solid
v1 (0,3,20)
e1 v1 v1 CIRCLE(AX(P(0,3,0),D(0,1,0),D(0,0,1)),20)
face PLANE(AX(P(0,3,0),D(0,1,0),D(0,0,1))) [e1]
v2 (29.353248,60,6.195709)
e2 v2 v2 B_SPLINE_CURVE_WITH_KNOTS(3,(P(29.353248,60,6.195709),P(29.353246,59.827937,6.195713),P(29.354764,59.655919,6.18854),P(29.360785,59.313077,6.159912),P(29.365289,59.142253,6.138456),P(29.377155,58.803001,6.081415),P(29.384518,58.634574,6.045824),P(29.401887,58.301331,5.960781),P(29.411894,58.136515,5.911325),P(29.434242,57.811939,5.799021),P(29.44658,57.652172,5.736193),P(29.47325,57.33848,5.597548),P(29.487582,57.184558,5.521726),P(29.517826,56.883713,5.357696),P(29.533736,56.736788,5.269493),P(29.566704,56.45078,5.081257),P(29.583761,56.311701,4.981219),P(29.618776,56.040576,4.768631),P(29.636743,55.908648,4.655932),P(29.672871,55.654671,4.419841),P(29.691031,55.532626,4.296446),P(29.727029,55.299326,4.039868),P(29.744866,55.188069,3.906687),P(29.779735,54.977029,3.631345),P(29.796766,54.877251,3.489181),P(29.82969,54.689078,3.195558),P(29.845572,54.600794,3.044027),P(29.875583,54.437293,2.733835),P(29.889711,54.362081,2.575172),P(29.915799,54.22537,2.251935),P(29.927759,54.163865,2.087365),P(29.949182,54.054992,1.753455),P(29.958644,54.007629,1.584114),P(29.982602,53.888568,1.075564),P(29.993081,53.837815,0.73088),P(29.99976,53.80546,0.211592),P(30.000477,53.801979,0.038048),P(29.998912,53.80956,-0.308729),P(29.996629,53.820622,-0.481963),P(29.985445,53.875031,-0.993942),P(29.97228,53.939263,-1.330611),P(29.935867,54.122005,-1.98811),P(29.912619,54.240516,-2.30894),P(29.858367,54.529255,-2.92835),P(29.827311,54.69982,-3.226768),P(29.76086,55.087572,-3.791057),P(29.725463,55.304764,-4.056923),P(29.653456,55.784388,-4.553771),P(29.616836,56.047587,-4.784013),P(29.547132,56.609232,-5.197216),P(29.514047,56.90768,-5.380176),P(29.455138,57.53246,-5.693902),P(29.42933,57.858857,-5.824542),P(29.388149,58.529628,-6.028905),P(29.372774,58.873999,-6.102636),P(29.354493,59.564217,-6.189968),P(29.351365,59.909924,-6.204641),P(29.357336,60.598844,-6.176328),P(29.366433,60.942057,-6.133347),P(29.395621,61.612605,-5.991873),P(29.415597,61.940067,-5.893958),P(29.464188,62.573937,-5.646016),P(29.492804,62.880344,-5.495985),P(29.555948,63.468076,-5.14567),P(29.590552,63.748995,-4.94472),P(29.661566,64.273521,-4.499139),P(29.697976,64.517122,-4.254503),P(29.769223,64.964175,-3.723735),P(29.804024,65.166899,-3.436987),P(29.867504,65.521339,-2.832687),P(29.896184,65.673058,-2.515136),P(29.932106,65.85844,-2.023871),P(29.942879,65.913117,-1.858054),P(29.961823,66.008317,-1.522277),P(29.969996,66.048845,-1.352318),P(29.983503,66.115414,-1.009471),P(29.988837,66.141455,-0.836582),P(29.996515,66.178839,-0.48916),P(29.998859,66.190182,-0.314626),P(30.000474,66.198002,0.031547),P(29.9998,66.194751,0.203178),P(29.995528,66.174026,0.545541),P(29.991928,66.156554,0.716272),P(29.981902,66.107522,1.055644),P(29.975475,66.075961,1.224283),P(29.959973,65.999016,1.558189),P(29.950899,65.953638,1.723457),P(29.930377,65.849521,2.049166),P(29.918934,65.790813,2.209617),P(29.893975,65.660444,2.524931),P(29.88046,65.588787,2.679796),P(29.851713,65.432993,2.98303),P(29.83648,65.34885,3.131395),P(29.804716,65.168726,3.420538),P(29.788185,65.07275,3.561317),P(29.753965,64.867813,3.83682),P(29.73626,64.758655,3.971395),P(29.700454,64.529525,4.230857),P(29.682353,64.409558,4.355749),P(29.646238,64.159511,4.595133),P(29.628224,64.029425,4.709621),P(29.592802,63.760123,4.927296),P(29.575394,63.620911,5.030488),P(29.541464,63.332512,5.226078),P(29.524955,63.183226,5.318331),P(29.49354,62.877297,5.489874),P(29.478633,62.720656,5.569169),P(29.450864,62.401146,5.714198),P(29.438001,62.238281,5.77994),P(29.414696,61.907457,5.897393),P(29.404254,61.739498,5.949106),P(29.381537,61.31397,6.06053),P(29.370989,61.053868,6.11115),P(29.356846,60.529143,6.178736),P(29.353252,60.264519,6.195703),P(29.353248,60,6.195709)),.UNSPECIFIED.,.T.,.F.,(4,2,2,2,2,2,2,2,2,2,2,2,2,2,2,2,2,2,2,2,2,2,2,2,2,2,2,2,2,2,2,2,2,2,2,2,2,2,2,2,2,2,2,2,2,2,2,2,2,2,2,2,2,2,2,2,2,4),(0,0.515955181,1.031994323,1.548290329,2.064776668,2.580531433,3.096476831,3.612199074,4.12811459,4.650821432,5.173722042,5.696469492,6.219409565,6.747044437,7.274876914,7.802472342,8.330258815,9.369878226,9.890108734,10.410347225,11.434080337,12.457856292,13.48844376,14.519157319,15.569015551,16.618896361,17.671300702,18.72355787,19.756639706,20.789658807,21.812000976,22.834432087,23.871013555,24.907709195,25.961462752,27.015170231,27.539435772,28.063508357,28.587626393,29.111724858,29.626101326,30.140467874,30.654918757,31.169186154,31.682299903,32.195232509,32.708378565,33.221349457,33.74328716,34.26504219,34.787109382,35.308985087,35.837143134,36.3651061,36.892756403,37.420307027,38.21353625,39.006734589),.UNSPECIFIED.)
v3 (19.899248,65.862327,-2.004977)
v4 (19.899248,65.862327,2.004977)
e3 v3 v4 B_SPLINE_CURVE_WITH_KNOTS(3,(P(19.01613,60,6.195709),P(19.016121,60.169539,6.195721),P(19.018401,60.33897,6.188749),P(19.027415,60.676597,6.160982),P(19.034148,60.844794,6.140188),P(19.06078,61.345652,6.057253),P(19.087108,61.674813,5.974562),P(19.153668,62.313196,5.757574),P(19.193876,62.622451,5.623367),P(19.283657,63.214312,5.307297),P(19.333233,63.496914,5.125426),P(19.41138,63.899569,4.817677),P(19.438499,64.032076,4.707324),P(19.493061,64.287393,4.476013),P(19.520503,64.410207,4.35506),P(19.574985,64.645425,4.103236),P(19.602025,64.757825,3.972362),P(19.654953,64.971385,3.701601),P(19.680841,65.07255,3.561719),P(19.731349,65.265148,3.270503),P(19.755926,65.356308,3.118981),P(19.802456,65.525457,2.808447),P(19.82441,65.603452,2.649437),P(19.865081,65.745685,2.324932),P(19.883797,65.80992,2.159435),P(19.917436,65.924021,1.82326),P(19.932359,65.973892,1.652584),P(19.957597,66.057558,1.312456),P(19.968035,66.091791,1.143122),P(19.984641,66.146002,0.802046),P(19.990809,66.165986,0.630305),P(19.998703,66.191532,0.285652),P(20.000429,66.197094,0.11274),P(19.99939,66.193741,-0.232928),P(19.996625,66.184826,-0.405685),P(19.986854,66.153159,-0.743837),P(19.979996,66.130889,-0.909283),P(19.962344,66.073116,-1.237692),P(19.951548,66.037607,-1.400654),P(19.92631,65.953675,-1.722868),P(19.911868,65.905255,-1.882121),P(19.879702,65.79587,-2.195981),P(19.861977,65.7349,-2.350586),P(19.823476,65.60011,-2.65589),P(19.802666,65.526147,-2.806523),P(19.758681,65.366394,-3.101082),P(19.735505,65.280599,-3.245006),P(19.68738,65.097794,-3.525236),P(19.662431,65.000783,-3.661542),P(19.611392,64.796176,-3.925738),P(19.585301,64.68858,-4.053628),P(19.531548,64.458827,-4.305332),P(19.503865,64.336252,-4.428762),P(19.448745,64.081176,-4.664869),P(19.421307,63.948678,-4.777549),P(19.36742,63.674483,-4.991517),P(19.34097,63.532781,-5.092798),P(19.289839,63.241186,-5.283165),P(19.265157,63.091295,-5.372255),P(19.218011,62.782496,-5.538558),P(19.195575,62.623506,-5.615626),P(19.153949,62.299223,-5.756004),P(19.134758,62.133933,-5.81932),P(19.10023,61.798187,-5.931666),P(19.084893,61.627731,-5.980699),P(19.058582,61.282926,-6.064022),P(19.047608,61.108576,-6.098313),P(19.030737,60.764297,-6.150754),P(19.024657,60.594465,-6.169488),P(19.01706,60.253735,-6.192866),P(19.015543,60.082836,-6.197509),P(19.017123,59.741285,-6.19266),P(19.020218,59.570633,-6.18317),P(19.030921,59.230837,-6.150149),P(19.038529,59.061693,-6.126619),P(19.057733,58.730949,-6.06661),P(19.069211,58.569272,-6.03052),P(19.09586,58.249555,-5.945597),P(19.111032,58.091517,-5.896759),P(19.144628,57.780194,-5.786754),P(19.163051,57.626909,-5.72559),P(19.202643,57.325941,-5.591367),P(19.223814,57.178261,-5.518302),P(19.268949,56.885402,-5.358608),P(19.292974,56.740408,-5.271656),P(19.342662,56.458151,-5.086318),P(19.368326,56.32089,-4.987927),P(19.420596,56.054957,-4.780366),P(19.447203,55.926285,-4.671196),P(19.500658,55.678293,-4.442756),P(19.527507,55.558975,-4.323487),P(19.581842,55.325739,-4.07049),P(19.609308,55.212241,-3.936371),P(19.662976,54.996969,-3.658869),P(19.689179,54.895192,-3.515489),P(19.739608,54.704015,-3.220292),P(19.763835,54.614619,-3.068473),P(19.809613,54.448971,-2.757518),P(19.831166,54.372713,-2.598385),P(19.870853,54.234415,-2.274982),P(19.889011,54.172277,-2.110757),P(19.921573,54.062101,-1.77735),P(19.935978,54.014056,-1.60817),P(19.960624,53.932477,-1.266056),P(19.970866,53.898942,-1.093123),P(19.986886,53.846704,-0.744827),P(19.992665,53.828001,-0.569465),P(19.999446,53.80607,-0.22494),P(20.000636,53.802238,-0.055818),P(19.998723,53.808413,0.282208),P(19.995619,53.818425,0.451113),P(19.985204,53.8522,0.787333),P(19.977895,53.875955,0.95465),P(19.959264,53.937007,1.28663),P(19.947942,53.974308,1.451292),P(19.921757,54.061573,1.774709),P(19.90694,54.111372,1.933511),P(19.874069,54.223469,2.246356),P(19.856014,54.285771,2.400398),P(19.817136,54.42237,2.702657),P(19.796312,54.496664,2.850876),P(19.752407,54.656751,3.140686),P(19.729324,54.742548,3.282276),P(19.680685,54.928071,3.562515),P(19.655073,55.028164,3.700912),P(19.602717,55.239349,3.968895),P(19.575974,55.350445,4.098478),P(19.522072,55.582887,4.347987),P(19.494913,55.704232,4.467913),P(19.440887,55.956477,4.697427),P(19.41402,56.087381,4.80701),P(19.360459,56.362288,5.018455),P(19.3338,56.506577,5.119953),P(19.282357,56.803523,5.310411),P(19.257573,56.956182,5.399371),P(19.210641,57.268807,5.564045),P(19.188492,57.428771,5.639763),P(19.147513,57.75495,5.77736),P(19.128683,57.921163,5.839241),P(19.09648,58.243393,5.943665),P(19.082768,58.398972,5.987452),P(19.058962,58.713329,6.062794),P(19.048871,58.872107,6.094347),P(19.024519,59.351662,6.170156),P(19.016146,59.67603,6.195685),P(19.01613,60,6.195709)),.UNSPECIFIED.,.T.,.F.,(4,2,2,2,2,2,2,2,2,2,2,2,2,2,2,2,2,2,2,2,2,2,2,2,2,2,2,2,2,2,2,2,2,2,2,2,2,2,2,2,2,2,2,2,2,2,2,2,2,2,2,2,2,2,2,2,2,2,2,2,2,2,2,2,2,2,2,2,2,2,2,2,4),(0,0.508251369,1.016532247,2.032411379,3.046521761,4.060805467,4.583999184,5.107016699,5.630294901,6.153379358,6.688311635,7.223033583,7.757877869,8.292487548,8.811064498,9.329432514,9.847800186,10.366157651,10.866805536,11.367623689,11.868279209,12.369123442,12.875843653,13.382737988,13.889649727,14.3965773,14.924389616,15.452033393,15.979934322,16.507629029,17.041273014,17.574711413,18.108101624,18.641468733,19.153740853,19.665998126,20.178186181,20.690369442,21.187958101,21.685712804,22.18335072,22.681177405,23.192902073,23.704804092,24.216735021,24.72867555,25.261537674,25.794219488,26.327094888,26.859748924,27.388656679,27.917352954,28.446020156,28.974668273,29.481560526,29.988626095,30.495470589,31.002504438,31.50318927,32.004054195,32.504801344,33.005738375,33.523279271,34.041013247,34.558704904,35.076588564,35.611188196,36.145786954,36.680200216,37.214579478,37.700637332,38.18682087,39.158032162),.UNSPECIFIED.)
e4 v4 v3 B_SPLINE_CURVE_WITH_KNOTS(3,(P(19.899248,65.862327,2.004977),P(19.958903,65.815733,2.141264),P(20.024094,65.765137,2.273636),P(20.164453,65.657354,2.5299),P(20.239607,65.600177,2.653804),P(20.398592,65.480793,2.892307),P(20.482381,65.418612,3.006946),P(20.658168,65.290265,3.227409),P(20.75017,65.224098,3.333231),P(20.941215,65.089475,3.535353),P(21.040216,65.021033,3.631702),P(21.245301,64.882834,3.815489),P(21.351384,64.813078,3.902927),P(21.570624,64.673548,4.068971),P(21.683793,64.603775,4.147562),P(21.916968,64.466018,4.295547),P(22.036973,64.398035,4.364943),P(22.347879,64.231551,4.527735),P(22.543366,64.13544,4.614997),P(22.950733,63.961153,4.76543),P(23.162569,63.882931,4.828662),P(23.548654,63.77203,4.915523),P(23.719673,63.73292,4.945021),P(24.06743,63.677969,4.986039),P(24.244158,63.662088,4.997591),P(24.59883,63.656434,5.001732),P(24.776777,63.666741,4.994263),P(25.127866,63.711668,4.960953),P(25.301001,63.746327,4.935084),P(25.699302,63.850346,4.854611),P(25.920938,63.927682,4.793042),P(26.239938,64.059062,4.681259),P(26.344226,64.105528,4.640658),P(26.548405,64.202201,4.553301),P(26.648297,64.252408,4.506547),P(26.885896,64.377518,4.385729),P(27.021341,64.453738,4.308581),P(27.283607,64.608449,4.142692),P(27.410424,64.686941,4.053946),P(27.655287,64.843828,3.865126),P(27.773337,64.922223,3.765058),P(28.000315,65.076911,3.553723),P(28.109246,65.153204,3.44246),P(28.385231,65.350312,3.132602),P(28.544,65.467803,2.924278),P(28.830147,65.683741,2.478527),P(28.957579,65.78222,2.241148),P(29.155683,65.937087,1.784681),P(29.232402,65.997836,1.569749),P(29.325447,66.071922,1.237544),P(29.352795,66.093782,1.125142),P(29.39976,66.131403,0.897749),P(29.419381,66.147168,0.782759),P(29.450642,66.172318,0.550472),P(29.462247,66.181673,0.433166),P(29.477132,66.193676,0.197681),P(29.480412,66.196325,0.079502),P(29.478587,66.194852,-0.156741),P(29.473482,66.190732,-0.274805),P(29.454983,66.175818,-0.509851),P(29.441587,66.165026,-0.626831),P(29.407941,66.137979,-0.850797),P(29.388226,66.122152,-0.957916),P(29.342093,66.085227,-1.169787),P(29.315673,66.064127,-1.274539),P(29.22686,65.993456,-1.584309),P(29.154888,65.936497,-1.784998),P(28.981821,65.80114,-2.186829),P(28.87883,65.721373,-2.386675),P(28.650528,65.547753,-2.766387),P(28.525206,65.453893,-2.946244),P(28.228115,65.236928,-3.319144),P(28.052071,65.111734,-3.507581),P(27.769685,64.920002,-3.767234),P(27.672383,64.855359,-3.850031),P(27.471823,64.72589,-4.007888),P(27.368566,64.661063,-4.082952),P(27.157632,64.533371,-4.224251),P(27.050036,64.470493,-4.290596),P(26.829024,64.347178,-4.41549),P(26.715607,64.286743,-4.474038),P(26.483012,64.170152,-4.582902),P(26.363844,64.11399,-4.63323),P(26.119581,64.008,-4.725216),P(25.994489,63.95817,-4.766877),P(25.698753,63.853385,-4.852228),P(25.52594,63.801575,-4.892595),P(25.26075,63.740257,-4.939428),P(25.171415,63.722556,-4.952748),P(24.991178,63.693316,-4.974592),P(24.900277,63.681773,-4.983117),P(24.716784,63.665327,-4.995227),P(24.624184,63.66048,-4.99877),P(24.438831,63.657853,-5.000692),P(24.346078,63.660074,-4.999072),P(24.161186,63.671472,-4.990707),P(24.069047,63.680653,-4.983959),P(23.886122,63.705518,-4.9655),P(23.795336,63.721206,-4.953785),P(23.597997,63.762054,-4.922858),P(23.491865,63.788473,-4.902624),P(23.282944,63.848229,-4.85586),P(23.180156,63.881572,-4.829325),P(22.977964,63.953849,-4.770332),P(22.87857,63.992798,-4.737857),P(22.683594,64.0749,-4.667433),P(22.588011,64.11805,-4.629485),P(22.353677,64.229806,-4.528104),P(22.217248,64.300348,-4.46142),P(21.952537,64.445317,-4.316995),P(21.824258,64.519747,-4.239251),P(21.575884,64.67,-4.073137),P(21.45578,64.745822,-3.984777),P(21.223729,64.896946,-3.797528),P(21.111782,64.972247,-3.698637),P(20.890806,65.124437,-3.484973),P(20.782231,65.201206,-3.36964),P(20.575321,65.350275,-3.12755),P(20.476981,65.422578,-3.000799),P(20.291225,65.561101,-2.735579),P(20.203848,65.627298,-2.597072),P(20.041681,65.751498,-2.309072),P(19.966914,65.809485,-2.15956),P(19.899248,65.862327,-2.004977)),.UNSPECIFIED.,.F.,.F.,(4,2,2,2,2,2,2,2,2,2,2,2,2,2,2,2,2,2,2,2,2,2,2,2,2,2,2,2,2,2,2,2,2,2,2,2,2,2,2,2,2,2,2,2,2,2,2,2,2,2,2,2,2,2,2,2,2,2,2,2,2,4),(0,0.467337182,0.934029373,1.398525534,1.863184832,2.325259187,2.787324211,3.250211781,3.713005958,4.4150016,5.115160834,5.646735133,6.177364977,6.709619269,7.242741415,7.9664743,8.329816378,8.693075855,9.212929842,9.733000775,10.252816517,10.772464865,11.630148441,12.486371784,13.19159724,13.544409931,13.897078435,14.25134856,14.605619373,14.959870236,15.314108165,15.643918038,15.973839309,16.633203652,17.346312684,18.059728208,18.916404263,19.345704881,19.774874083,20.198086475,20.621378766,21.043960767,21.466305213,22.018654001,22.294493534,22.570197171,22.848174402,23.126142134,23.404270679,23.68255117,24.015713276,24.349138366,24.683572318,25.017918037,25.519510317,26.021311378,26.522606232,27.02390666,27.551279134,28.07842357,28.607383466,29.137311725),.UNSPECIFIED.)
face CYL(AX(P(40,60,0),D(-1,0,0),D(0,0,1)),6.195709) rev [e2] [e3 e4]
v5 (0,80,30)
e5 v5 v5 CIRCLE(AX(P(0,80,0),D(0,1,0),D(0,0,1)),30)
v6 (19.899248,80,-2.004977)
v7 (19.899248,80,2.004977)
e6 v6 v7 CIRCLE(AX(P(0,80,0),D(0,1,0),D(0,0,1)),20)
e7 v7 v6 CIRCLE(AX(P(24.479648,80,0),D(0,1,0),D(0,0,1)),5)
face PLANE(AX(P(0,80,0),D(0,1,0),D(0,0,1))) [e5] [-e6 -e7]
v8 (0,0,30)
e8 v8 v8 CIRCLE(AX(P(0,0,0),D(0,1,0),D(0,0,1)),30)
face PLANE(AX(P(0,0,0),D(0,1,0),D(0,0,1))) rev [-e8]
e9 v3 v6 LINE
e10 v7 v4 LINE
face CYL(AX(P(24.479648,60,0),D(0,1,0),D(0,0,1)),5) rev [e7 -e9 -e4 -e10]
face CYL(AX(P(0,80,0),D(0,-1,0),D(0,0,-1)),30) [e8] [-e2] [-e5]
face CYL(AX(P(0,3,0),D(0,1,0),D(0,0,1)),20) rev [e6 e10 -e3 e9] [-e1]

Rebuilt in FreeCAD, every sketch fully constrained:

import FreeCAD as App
import Part
import Sketcher

V = App.Vector
Q = App.Units.Quantity

doc = App.newDocument("Part")
body = doc.addObject("PartDesign::Body", "Body")

sketch1 = doc.addObject("Sketcher::SketchObject", "Sketch")
body.addObject(sketch1)
sketch1.AttachmentSupport = (doc.XZ_Plane, [""])
sketch1.MapMode = "FlatFace"
sketch1.addGeometry(Part.Circle(V(0, 0, 0), V(0, 0, 1), 30), False)
sketch1.addConstraint(Sketcher.Constraint("Coincident", 0, 3, -1, 1))
sketch1.addConstraint(Sketcher.Constraint("Diameter", 0, Q("60 mm")))
pad1 = doc.addObject("PartDesign::Pad", "Pad")
body.addObject(pad1)
pad1.Profile = sketch1
pad1.Length = 80
pad1.Reversed = True

sketch2 = doc.addObject("Sketcher::SketchObject", "Sketch001")
body.addObject(sketch2)
sketch2.AttachmentSupport = (doc.XZ_Plane, [""])
sketch2.MapMode = "FlatFace"
sketch2.AttachmentOffset = App.Placement(V(0, 0, -80), App.Rotation())
sketch2.addGeometry(Part.Circle(V(0, 0, 0), V(0, 0, 1), 20), False)
sketch2.addConstraint(Sketcher.Constraint("Coincident", 0, 3, -1, 1))
sketch2.addConstraint(Sketcher.Constraint("Diameter", 0, Q("40 mm")))
pocket1 = doc.addObject("PartDesign::Pocket", "Pocket")
body.addObject(pocket1)
pocket1.Profile = sketch2
pocket1.Length = 77
pocket1.Reversed = True

sketch3 = doc.addObject("Sketcher::SketchObject", "Sketch002")
body.addObject(sketch3)
sketch3.AttachmentSupport = (doc.XZ_Plane, [""])
sketch3.MapMode = "FlatFace"
sketch3.AttachmentOffset = App.Placement(V(0, 0, -80), App.Rotation())
sketch3.addGeometry(Part.Circle(V(24, 0, 0), V(0, 0, 1), 5), False)
sketch3.addConstraint(Sketcher.Constraint("PointOnObject", 0, 3, -1))
sketch3.addConstraint(Sketcher.Constraint("Diameter", 0, Q("10 mm")))
sketch3.addConstraint(Sketcher.Constraint("DistanceX", -1, 1, 0, 3, Q("24.479648 mm")))
pocket2 = doc.addObject("PartDesign::Pocket", "Pocket001")
body.addObject(pocket2)
pocket2.Profile = sketch3
pocket2.Length = 20
pocket2.Reversed = True

sketch4 = doc.addObject("Sketcher::SketchObject", "Sketch003")
body.addObject(sketch4)
sketch4.AttachmentSupport = (doc.YZ_Plane, [""])
sketch4.MapMode = "FlatFace"
sketch4.addGeometry(Part.Circle(V(60, 0, 0), V(0, 0, 1), 6), False)
sketch4.addConstraint(Sketcher.Constraint("PointOnObject", 0, 3, -1))
sketch4.addConstraint(Sketcher.Constraint("DistanceX", -1, 1, 0, 3, Q("60 mm")))
sketch4.addConstraint(Sketcher.Constraint("Diameter", 0, Q("12.391418 mm")))
pocket3 = doc.addObject("PartDesign::Pocket", "Pocket002")
body.addObject(pocket3)
pocket3.Profile = sketch4
pocket3.Length = 40
pocket3.Reversed = True

doc.recompute()
